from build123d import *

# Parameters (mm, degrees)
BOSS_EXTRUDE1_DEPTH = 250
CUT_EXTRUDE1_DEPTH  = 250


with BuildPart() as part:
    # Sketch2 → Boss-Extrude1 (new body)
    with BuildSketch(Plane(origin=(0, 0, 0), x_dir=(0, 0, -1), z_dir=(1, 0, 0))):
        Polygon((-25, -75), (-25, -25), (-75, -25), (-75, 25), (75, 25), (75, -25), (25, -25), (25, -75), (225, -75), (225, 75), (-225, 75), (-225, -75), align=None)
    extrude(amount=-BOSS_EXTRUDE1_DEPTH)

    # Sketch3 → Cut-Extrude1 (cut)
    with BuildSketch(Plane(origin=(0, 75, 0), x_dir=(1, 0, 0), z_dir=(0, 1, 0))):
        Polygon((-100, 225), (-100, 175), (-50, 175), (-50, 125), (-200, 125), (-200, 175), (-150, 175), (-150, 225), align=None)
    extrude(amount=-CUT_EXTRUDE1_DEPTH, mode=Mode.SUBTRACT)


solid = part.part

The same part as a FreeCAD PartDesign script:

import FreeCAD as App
import Part
import Sketcher

doc = App.newDocument("Part")
body = doc.addObject("PartDesign::Body", "Body")

# Sketch on YZ plane
sketch1 = body.newObject("Sketcher::SketchObject", "Sketch")
sketch1.AttachmentSupport = (doc.getObject("YZ_Plane"), [""])
sketch1.MapMode = "FlatFace"
sketch1.addGeometry([
    Part.LineSegment(App.Vector(-75, 25, 0), App.Vector(-25, 25, 0)),  # 0
    Part.LineSegment(App.Vector(-25, 25, 0), App.Vector(-25, 75, 0)),  # 1
    Part.LineSegment(App.Vector(-25, 75, 0), App.Vector(25, 75, 0)),  # 2
    Part.LineSegment(App.Vector(25, 75, 0), App.Vector(25, -75, 0)),  # 3
    Part.LineSegment(App.Vector(25, -75, 0), App.Vector(-25, -75, 0)),  # 4
    Part.LineSegment(App.Vector(-25, -75, 0), App.Vector(-25, -25, 0)),  # 5
    Part.LineSegment(App.Vector(-25, -25, 0), App.Vector(-75, -25, 0)),  # 6
    Part.LineSegment(App.Vector(-75, -25, 0), App.Vector(-75, -225, 0)),  # 7
    Part.LineSegment(App.Vector(-75, -225, 0), App.Vector(75, -225, 0)),  # 8
    Part.LineSegment(App.Vector(75, -225, 0), App.Vector(75, 225, 0)),  # 9
    Part.LineSegment(App.Vector(75, 225, 0), App.Vector(-75, 225, 0)),  # 10
    Part.LineSegment(App.Vector(-75, 225, 0), App.Vector(-75, 25, 0)),  # 11
], False)
sketch1.addConstraint([
    Sketcher.Constraint("Coincident", 0, 2, 1, 1),
    Sketcher.Constraint("Coincident", 1, 2, 2, 1),
    Sketcher.Constraint("Coincident", 2, 2, 3, 1),
    Sketcher.Constraint("Coincident", 3, 2, 4, 1),
    Sketcher.Constraint("Coincident", 4, 2, 5, 1),
    Sketcher.Constraint("Coincident", 5, 2, 6, 1),
    Sketcher.Constraint("Coincident", 6, 2, 7, 1),
    Sketcher.Constraint("Coincident", 7, 2, 8, 1),
    Sketcher.Constraint("Coincident", 8, 2, 9, 1),
    Sketcher.Constraint("Coincident", 9, 2, 10, 1),
    Sketcher.Constraint("Coincident", 10, 2, 11, 1),
    Sketcher.Constraint("Coincident", 11, 2, 0, 1),
    Sketcher.Constraint("Horizontal", 0),
    Sketcher.Constraint("Vertical", 1),
    Sketcher.Constraint("Horizontal", 2),
    Sketcher.Constraint("Vertical", 3),
    Sketcher.Constraint("Horizontal", 4),
    Sketcher.Constraint("Vertical", 5),
    Sketcher.Constraint("Horizontal", 6),
    Sketcher.Constraint("Vertical", 7),
    Sketcher.Constraint("Horizontal", 8),
    Sketcher.Constraint("Vertical", 9),
    Sketcher.Constraint("Horizontal", 10),
    Sketcher.Constraint("Vertical", 11),
    Sketcher.Constraint("Symmetric", 1, 2, 3, 2, -1, 1),
    Sketcher.Constraint("Symmetric", 7, 2, 9, 2, -1, 1),
    Sketcher.Constraint("Symmetric", 0, 2, 5, 2, -1),
    Sketcher.Constraint("Vertical", 7, 2, 10, 2),
    Sketcher.Constraint("Equal", 0, 2),
    Sketcher.Constraint("Equal", 6, 1),
    Sketcher.Constraint("Equal", 10, 3),
    Sketcher.Constraint("DistanceX", 0, 1, 0, 2, 50.0),
    Sketcher.Constraint("DistanceY", 7, 2, 7, 1, 200.0),
])
pad1 = body.newObject("PartDesign::Pad", "Pad")
pad1.Profile = sketch1
pad1.Length = 250
pad1.Reversed = True

# Sketch on XZ plane
sketch2 = body.newObject("Sketcher::SketchObject", "Sketch001")
sketch2.AttachmentSupport = (doc.getObject("XZ_Plane"), [""])
sketch2.MapMode = "FlatFace"
sketch2.AttachmentOffset = App.Placement(App.Vector(0, 0, -75), App.Rotation())
sketch2.addGeometry([
    Part.LineSegment(App.Vector(-100, -175, 0), App.Vector(-100, -225, 0)),  # 0
    Part.LineSegment(App.Vector(-100, -225, 0), App.Vector(-150, -225, 0)),  # 1
    Part.LineSegment(App.Vector(-150, -225, 0), App.Vector(-150, -175, 0)),  # 2
    Part.LineSegment(App.Vector(-150, -175, 0), App.Vector(-200, -175, 0)),  # 3
    Part.LineSegment(App.Vector(-200, -175, 0), App.Vector(-200, -125, 0)),  # 4
    Part.LineSegment(App.Vector(-200, -125, 0), App.Vector(-50, -125, 0)),  # 5
    Part.LineSegment(App.Vector(-50, -125, 0), App.Vector(-50, -175, 0)),  # 6
    Part.LineSegment(App.Vector(-50, -175, 0), App.Vector(-100, -175, 0)),  # 7
], False)
sketch2.addConstraint([
    Sketcher.Constraint("Coincident", 0, 2, 1, 1),
    Sketcher.Constraint("Coincident", 1, 2, 2, 1),
    Sketcher.Constraint("Coincident", 2, 2, 3, 1),
    Sketcher.Constraint("Coincident", 3, 2, 4, 1),
    Sketcher.Constraint("Coincident", 4, 2, 5, 1),
    Sketcher.Constraint("Coincident", 5, 2, 6, 1),
    Sketcher.Constraint("Coincident", 6, 2, 7, 1),
    Sketcher.Constraint("Coincident", 7, 2, 0, 1),
    Sketcher.Constraint("Vertical", 0),
    Sketcher.Constraint("Horizontal", 1),
    Sketcher.Constraint("Vertical", 2),
    Sketcher.Constraint("Horizontal", 3),
    Sketcher.Constraint("Vertical", 4),
    Sketcher.Constraint("Horizontal", 5),
    Sketcher.Constraint("Vertical", 6),
    Sketcher.Constraint("Horizontal", 7),
    Sketcher.Constraint("Horizontal", 3, 2, 6, 2),
    Sketcher.Constraint("Equal", 1, 3),
    Sketcher.Constraint("Equal", 3, 7),
    Sketcher.Constraint("Equal", 7, 0),
    Sketcher.Constraint("Equal", 2, 4),
    Sketcher.Constraint("DistanceX", 1, 2, 1, 1, 50.0),
    Sketcher.Constraint("DistanceX", 0, 2, -1, 1, 100.0),
    Sketcher.Constraint("DistanceY", 0, 2, -1, 1, 225.0),
])
pocket1 = body.newObject("PartDesign::Pocket", "Pocket")
pocket1.Profile = sketch2
pocket1.Length = 250
pocket1.Reversed = True

doc.recompute()
